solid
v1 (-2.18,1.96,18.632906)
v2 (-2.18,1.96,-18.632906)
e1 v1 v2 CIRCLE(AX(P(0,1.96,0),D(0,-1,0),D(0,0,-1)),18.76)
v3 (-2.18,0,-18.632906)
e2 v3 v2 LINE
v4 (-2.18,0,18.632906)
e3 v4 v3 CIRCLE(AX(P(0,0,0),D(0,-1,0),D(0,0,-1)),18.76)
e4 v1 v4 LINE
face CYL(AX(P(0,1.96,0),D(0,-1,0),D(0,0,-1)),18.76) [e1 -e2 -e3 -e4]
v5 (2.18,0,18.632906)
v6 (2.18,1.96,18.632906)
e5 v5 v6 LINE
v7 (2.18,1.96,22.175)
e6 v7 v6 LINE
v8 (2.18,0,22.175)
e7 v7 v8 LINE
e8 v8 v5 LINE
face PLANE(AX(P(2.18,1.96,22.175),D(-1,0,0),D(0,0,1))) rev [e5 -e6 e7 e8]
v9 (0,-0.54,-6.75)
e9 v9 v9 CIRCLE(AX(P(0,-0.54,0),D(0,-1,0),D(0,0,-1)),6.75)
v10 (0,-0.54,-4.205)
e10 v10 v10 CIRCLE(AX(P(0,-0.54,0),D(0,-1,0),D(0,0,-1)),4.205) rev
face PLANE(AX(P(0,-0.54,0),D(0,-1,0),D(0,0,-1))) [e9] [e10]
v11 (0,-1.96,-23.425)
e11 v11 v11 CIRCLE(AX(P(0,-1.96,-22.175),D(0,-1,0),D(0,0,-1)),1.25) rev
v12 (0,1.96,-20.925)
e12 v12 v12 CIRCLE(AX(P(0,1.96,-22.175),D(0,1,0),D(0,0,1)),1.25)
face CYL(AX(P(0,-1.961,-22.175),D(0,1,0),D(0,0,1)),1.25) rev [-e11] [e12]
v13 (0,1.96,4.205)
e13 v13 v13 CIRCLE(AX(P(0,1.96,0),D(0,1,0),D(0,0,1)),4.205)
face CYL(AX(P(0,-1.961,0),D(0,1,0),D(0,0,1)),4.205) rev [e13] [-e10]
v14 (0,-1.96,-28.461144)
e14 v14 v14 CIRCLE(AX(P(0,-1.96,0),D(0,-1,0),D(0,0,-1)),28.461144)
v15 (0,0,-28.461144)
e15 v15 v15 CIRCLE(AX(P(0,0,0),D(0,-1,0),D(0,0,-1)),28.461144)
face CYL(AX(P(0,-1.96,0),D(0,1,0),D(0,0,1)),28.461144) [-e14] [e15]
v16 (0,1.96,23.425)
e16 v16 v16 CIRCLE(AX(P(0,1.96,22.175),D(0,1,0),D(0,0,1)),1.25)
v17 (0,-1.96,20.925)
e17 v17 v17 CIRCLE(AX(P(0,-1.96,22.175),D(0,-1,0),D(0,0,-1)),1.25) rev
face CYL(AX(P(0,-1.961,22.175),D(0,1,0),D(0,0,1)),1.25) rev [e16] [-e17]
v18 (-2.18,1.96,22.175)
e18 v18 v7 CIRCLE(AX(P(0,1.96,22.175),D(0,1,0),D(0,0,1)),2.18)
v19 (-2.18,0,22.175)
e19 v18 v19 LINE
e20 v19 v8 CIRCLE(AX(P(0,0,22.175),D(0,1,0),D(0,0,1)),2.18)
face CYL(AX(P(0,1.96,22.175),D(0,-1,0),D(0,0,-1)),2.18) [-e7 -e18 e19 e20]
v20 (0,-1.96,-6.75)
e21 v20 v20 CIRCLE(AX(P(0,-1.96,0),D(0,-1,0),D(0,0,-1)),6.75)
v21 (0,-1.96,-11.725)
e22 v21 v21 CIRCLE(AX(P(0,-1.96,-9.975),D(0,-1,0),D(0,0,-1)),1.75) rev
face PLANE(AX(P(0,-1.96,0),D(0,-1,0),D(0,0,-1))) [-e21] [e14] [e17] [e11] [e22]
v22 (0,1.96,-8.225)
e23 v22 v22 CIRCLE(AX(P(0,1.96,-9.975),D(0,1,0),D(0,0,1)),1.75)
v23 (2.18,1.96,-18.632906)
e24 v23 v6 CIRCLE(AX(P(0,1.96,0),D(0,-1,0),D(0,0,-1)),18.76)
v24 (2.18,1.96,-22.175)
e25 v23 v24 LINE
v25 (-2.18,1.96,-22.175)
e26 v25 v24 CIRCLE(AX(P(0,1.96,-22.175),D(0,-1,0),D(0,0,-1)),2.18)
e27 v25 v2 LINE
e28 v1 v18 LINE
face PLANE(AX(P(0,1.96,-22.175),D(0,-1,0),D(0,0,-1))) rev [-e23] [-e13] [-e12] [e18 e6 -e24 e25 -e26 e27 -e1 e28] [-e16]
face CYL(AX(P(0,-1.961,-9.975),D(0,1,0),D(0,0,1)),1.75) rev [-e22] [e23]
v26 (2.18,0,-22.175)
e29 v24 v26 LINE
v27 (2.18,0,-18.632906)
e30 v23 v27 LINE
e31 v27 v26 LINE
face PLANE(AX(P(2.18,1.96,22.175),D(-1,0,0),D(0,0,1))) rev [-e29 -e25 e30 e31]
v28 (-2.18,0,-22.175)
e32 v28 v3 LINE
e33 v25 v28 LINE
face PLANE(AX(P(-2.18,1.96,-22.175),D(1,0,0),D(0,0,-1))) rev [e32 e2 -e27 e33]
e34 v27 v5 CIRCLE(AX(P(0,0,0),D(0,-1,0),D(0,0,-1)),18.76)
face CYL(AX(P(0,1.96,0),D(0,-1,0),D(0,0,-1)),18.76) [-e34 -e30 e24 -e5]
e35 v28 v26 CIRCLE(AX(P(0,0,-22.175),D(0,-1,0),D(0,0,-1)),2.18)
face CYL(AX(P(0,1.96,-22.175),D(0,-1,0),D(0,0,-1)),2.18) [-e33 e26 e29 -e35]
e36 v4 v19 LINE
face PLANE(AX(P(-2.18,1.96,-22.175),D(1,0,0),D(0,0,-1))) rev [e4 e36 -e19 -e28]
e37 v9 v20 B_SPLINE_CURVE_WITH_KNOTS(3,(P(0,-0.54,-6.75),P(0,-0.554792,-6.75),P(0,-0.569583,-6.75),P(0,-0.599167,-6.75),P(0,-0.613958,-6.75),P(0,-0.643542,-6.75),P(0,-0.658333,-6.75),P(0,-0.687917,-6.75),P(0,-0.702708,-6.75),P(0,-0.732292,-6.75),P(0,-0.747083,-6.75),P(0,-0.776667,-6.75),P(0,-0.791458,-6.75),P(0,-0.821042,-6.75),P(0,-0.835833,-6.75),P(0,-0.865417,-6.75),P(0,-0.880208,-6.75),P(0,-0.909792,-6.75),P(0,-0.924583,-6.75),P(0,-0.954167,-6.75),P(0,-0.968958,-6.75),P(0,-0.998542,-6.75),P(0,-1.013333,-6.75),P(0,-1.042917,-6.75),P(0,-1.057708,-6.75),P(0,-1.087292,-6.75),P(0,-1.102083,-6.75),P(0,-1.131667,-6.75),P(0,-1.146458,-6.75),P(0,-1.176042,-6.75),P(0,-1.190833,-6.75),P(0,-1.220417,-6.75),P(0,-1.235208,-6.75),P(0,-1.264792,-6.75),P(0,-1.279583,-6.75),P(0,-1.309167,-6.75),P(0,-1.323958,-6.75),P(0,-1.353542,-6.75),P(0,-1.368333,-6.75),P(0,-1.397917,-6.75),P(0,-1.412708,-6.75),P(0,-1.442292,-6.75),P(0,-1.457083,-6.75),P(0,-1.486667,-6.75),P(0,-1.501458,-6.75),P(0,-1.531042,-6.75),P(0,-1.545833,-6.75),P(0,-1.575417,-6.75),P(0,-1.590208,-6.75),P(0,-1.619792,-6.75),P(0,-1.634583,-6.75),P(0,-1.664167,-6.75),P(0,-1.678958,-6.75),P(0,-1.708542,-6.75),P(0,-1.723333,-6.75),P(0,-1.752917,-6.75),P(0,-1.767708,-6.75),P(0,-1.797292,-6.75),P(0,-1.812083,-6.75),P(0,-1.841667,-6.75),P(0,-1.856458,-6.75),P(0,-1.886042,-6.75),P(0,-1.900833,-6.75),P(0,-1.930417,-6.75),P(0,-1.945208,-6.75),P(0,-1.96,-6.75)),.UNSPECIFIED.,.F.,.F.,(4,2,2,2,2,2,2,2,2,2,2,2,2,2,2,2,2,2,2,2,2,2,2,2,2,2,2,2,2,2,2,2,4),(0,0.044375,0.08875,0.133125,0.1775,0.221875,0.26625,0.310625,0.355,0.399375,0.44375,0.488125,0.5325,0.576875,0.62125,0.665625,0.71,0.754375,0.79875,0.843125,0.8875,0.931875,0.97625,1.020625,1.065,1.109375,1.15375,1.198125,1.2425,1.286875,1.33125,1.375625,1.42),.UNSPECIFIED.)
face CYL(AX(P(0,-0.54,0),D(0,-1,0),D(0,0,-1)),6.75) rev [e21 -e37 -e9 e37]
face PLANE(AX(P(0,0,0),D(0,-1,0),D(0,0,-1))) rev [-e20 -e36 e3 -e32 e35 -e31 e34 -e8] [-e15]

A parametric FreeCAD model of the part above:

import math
import FreeCAD as App
import Part
import Sketcher

V = App.Vector
Q = App.Units.Quantity

doc = App.newDocument("Part")
body = doc.addObject("PartDesign::Body", "Body")

# Sketch on XZ plane
sketch1 = doc.addObject("Sketcher::SketchObject", "Sketch")
body.addObject(sketch1)
sketch1.AttachmentSupport = (doc.XZ_Plane, [""])
sketch1.MapMode = "FlatFace"
sketch1.addGeometry([
    Part.LineSegment(V(-2.2, -22.2, 0), V(-2.2, 22.2, 0)),
    Part.ArcOfCircle(Part.Circle(V(0, 22.2, 0), V(0, 0, 1), 2.2), math.radians(0), math.radians(180)),
    Part.LineSegment(V(2.2, 22.2, 0), V(2.2, -22.2, 0)),
    Part.ArcOfCircle(Part.Circle(V(0, -22.2, 0), V(0, 0, 1), 2.2), math.radians(180), math.radians(360)),
], False)
sketch1.addConstraint([
    Sketcher.Constraint("Tangent", 0, 2, 1, 2),
    Sketcher.Constraint("Tangent", 1, 1, 2, 1),
    Sketcher.Constraint("Tangent", 2, 2, 3, 2),
    Sketcher.Constraint("Tangent", 3, 1, 0, 1),
    Sketcher.Constraint("Vertical", 0),
    Sketcher.Constraint("Vertical", 2),
    Sketcher.Constraint("Symmetric", 1, 3, 3, 3, -1, 1),
    Sketcher.Constraint("Radius", 1, Q("2.18 mm")),
    Sketcher.Constraint("DistanceY", 0, 1, 0, 2, Q("44.35 mm")),
])
pad1 = doc.addObject("PartDesign::Pad", "Pad")
body.addObject(pad1)
pad1.Profile = sketch1
pad1.Length = 1.96
pad1.Reversed = True

# Sketch on XZ plane
sketch2 = doc.addObject("Sketcher::SketchObject", "Sketch001")
body.addObject(sketch2)
sketch2.AttachmentSupport = (doc.XZ_Plane, [""])
sketch2.MapMode = "FlatFace"
sketch2.addGeometry(Part.Circle(V(0, 0, 0), V(0, 0, 1), 19), False)
sketch2.addConstraint([
    Sketcher.Constraint("Coincident", 0, 3, -1, 1),
    Sketcher.Constraint("Diameter", 0, Q("37.52 mm")),
])
pad2 = doc.addObject("PartDesign::Pad", "Pad001")
body.addObject(pad2)
pad2.Profile = sketch2
pad2.Length = 1.96
pad2.Reversed = True

# Sketch on XZ plane
sketch3 = doc.addObject("Sketcher::SketchObject", "Sketch002")
body.addObject(sketch3)
sketch3.AttachmentSupport = (doc.XZ_Plane, [""])
sketch3.MapMode = "FlatFace"
sketch3.addGeometry(Part.Circle(V(0, 0, 0), V(0, 0, 1), 28), False)
sketch3.addConstraint([
    Sketcher.Constraint("Coincident", 0, 3, -1, 1),
    Sketcher.Constraint("Diameter", 0, Q("56.922288 mm")),
])
pad3 = doc.addObject("PartDesign::Pad", "Pad002")
body.addObject(pad3)
pad3.Profile = sketch3
pad3.Length = 1.96

# Sketch on XZ plane
sketch4 = doc.addObject("Sketcher::SketchObject", "Sketch003")
body.addObject(sketch4)
sketch4.AttachmentSupport = (doc.XZ_Plane, [""])
sketch4.MapMode = "FlatFace"
sketch4.AttachmentOffset = App.Placement(V(0, 0, -1.96), App.Rotation())
sketch4.addGeometry(Part.Circle(V(0, -22.2, 0), V(0, 0, 1), 1.2), False)
sketch4.addConstraint([
    Sketcher.Constraint("PointOnObject", 0, 3, -2),
    Sketcher.Constraint("Diameter", 0, Q("2.5 mm")),
    Sketcher.Constraint("DistanceY", 0, 3, -1, 1, Q("22.175 mm")),
])
pocket1 = doc.addObject("PartDesign::Pocket", "Pocket")
body.addObject(pocket1)
pocket1.Profile = sketch4
pocket1.Type = "UpToFirst"
pocket1.Reversed = True

# Sketch on XZ plane
sketch5 = doc.addObject("Sketcher::SketchObject", "Sketch004")
body.addObject(sketch5)
sketch5.AttachmentSupport = (doc.XZ_Plane, [""])
sketch5.MapMode = "FlatFace"
sketch5.AttachmentOffset = App.Placement(V(0, 0, -1.96), App.Rotation())
sketch5.addGeometry(Part.Circle(V(0, 22.2, 0), V(0, 0, 1), 1.2), False)
sketch5.addConstraint([
    Sketcher.Constraint("PointOnObject", 0, 3, -2),
    Sketcher.Constraint("Diameter", 0, Q("2.5 mm")),
    Sketcher.Constraint("DistanceY", -1, 1, 0, 3, Q("22.175 mm")),
])
pocket2 = doc.addObject("PartDesign::Pocket", "Pocket001")
body.addObject(pocket2)
pocket2.Profile = sketch5
pocket2.Type = "UpToFirst"
pocket2.Reversed = True

# Sketch on XZ plane
sketch6 = doc.addObject("Sketcher::SketchObject", "Sketch005")
body.addObject(sketch6)
sketch6.AttachmentSupport = (doc.XZ_Plane, [""])
sketch6.MapMode = "FlatFace"
sketch6.AttachmentOffset = App.Placement(V(0, 0, -1.96), App.Rotation())
sketch6.addGeometry(Part.Circle(V(0, 0, 0), V(0, 0, 1), 4.2), False)
sketch6.addConstraint([
    Sketcher.Constraint("Coincident", 0, 3, -1, 1),
    Sketcher.Constraint("Diameter", 0, Q("8.41 mm")),
])
pocket3 = doc.addObject("PartDesign::Pocket", "Pocket002")
body.addObject(pocket3)
pocket3.Profile = sketch6
pocket3.Type = "UpToFirst"
pocket3.Reversed = True

# Sketch on XZ plane
sketch7 = doc.addObject("Sketcher::SketchObject", "Sketch006")
body.addObject(sketch7)
sketch7.AttachmentSupport = (doc.XZ_Plane, [""])
sketch7.MapMode = "FlatFace"
sketch7.AttachmentOffset = App.Placement(V(0, 0, -1.96), App.Rotation())
sketch7.addGeometry(Part.Circle(V(0, -10, 0), V(0, 0, 1), 1.8), False)
sketch7.addConstraint([
    Sketcher.Constraint("PointOnObject", 0, 3, -2),
    Sketcher.Constraint("Diameter", 0, Q("3.5 mm")),
    Sketcher.Constraint("DistanceY", 0, 3, -1, 1, Q("9.975 mm")),
])
pocket4 = doc.addObject("PartDesign::Pocket", "Pocket003")
body.addObject(pocket4)
pocket4.Profile = sketch7
pocket4.Type = "UpToFirst"
pocket4.Reversed = True

# Sketch on XZ plane
sketch8 = doc.addObject("Sketcher::SketchObject", "Sketch007")
body.addObject(sketch8)
sketch8.AttachmentSupport = (doc.XZ_Plane, [""])
sketch8.MapMode = "FlatFace"
sketch8.AttachmentOffset = App.Placement(V(0, 0, 1.96), App.Rotation())
sketch8.addGeometry(Part.Circle(V(0, 0, 0), V(0, 0, 1), 7), False)
sketch8.addConstraint([
    Sketcher.Constraint("Coincident", 0, 3, -1, 1),
    Sketcher.Constraint("Diameter", 0, Q("13.5 mm")),
])
pocket5 = doc.addObject("PartDesign::Pocket", "Pocket004")
body.addObject(pocket5)
pocket5.Profile = sketch8
pocket5.Length = 1.42

doc.recompute()
